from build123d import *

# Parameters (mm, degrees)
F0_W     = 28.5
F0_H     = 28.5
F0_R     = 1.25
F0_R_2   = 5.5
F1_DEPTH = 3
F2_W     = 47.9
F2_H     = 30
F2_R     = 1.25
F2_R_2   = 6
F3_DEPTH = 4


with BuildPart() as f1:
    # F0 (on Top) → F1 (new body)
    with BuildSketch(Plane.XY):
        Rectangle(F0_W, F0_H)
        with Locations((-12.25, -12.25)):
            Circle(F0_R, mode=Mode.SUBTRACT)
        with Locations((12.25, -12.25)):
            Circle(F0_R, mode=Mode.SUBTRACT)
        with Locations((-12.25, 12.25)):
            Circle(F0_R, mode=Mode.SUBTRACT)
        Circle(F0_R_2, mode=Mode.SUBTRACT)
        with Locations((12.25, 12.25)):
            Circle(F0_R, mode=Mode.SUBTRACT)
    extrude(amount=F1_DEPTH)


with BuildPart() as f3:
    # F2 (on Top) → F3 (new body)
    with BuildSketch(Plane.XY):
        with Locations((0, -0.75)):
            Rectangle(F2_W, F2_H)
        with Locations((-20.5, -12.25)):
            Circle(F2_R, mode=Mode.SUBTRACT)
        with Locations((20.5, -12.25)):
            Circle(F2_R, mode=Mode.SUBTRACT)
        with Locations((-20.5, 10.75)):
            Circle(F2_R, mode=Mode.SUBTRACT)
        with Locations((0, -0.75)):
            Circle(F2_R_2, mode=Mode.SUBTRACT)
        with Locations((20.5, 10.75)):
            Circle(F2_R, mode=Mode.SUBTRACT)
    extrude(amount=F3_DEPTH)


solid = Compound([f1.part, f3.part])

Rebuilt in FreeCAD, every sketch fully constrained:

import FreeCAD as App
import Part
import Sketcher

V = App.Vector


def add_polygon(sketch, points):
    """Adds a closed chain of lines whose ends are joined by coincident constraints."""
    first, n = sketch.GeometryCount, len(points)
    for a, b in zip(points, points[1:] + points[:1]):
        sketch.addGeometry(Part.LineSegment(App.Vector(*a, 0), App.Vector(*b, 0)), False)
    for i in range(n):
        sketch.addConstraint(Sketcher.Constraint("Coincident", first + i, 2, first + (i + 1) % n, 1))

doc = App.newDocument("Part")
body = doc.addObject("PartDesign::Body", "Body")

sketch1 = body.newObject("Sketcher::SketchObject", "Sketch")
sketch1.AttachmentSupport = (doc.getObject("XY_Plane"), [""])
sketch1.MapMode = "FlatFace"
add_polygon(sketch1, [(-14.2, 14.2), (-14.2, -14.2), (14.2, -14.2), (14.2, 14.2)])
sketch1.addGeometry(Part.Circle(V(-12.2, -12.2, 0), V(0, 0, 1), 1.2), False)
sketch1.addGeometry(Part.Circle(V(12.2, -12.2, 0), V(0, 0, 1), 1.2), False)
sketch1.addGeometry(Part.Circle(V(-12.2, 12.2, 0), V(0, 0, 1), 1.2), False)
sketch1.addGeometry(Part.Circle(V(0, 0, 0), V(0, 0, 1), 5.5), False)
sketch1.addGeometry(Part.Circle(V(12.2, 12.2, 0), V(0, 0, 1), 1.2), False)
sketch1.addConstraint([
    Sketcher.Constraint("Vertical", 0),
    Sketcher.Constraint("Horizontal", 1),
    Sketcher.Constraint("Vertical", 2),
    Sketcher.Constraint("Horizontal", 3),
    Sketcher.Constraint("Coincident", 7, 3, -1, 1),
    Sketcher.Constraint("Equal", 4, 5),
    Sketcher.Constraint("Equal", 5, 6),
    Sketcher.Constraint("Equal", 6, 8),
    Sketcher.Constraint("Symmetric", 5, 3, 6, 3, -1, 1),
    Sketcher.Constraint("Symmetric", 4, 3, 8, 3, -1, 1),
    Sketcher.Constraint("Symmetric", 0, 2, 2, 2, -1, 1),
    Sketcher.Constraint("Symmetric", 4, 3, 5, 3, -2),
    Sketcher.Constraint("Equal", 3, 0),
    Sketcher.Constraint("Diameter", 7, 11.0),
    Sketcher.Constraint("Diameter", 4, 2.5),
    Sketcher.Constraint("DistanceX", 1, 1, 1, 2, 28.5),
    Sketcher.Constraint("DistanceX", 0, 2, 4, 3, 2.0),
    Sketcher.Constraint("DistanceY", 0, 2, 4, 3, 2.0),
])
pad1 = body.newObject("PartDesign::Pad", "Pad")
pad1.Profile = sketch1
pad1.Length = 3
body2 = doc.addObject("PartDesign::Body", "Body001")

sketch2 = body2.newObject("Sketcher::SketchObject", "Sketch001")
sketch2.AttachmentSupport = (doc.getObject("XY_Plane001"), [""])
sketch2.MapMode = "FlatFace"
add_polygon(sketch2, [(-23.9, 14.2), (-23.9, -15.8), (23.9, -15.8), (23.9, 14.2)])
sketch2.addGeometry(Part.Circle(V(-20.5, -12.2, 0), V(0, 0, 1), 1.2), False)
sketch2.addGeometry(Part.Circle(V(20.5, -12.2, 0), V(0, 0, 1), 1.2), False)
sketch2.addGeometry(Part.Circle(V(-20.5, 10.8, 0), V(0, 0, 1), 1.2), False)
sketch2.addGeometry(Part.Circle(V(0, -0.8, 0), V(0, 0, 1), 6), False)
sketch2.addGeometry(Part.Circle(V(20.5, 10.8, 0), V(0, 0, 1), 1.2), False)
sketch2.addConstraint([
    Sketcher.Constraint("Vertical", 0),
    Sketcher.Constraint("Horizontal", 1),
    Sketcher.Constraint("Vertical", 2),
    Sketcher.Constraint("Horizontal", 3),
    Sketcher.Constraint("Equal", 4, 5),
    Sketcher.Constraint("Equal", 5, 6),
    Sketcher.Constraint("Equal", 6, 8),
    Sketcher.Constraint("Symmetric", 4, 3, 5, 3, -2),
    Sketcher.Constraint("Symmetric", 6, 3, 8, 3, -2),
    Sketcher.Constraint("PointOnObject", 7, 3, -2),
    Sketcher.Constraint("Vertical", 4, 3, 6, 3),
    Sketcher.Constraint("Diameter", 7, 12.0),
    Sketcher.Constraint("Diameter", 4, 2.5),
    Sketcher.Constraint("DistanceY", 0, 2, 0, 1, 30.0),
    Sketcher.Constraint("DistanceX", 1, 1, 1, 2, 47.9),
    Sketcher.Constraint("DistanceX", 4, 3, 5, 3, 41.0),
    Sketcher.Constraint("DistanceY", 4, 3, 6, 3, 23.0),
    Sketcher.Constraint("DistanceY", 0, 2, 7, 3, 15.0),
    Sketcher.Constraint("DistanceY", 4, 3, 7, 3, 11.5),
    Sketcher.Constraint("DistanceY", 4, 3, -1, 1, 12.25),
    Sketcher.Constraint("DistanceX", 0, 2, -1, 1, 23.95),
])
pad2 = body2.newObject("PartDesign::Pad", "Pad001")
pad2.Profile = sketch2
pad2.Length = 4

doc.recompute()
